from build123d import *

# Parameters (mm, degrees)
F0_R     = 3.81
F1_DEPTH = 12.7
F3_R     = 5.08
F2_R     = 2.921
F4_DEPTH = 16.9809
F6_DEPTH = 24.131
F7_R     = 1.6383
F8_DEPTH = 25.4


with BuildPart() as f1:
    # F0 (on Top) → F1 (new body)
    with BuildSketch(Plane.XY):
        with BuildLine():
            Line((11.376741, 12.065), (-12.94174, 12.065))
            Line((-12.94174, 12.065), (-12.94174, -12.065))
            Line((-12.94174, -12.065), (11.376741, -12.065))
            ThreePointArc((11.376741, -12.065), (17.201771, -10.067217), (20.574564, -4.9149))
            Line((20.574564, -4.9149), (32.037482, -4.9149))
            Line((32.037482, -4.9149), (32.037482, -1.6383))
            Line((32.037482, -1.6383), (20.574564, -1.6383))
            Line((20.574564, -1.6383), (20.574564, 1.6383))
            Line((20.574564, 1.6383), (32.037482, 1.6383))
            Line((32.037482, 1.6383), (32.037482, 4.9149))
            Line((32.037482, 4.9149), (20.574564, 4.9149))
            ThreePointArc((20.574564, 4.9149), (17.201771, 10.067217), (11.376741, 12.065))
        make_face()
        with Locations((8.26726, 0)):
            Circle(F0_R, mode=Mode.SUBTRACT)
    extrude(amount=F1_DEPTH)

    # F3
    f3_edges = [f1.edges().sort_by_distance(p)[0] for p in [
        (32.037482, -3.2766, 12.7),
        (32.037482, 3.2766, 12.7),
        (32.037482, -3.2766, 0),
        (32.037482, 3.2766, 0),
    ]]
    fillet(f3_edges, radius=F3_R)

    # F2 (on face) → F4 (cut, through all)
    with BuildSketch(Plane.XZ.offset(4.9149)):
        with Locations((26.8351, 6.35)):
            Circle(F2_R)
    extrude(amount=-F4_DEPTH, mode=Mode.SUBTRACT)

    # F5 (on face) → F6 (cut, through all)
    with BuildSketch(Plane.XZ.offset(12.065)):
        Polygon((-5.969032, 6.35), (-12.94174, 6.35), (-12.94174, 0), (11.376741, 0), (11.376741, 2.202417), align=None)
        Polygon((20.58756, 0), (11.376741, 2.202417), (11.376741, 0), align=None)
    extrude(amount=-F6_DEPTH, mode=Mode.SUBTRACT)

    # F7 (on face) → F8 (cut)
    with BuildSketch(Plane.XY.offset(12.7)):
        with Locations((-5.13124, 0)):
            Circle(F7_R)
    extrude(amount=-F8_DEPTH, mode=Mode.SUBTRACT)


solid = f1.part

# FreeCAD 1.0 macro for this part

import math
import FreeCAD as App
import Part
import Sketcher
from FreeCAD import Vector
Q = App.Units.Quantity


def edges_at(feature, points):
    """Names of the edges that pass closest to the given points."""
    edges = feature.Shape.Edges
    near = lambda p: min(range(len(edges)), key=lambda i: edges[i].distToShape(Part.Vertex(*p))[0])
    return sorted({f"Edge{near(p) + 1}" for p in points})


def add_polygon(sketch, points):
    """Adds a closed chain of lines whose ends are joined by coincident constraints."""
    first, n = sketch.GeometryCount, len(points)
    for a, b in zip(points, points[1:] + points[:1]):
        sketch.addGeometry(Part.LineSegment(App.Vector(*a, 0), App.Vector(*b, 0)), False)
    for i in range(n):
        sketch.addConstraint(Sketcher.Constraint("Coincident", first + i, 2, first + (i + 1) % n, 1))

doc = App.newDocument("Part")
body = doc.addObject("PartDesign::Body", "Body")

# Sketch on XY plane
sketch1 = doc.addObject("Sketcher::SketchObject", "Sketch")
body.addObject(sketch1)
sketch1.AttachmentSupport = (doc.XY_Plane, [""])
sketch1.MapMode = "FlatFace"
sketch1.addGeometry(Part.LineSegment(Vector(11.4, 12.1, 0), Vector(-12.9, 12.1, 0)), False)
sketch1.addGeometry(Part.LineSegment(Vector(-12.9, 12.1, 0), Vector(-12.9, -12.1, 0)), False)
sketch1.addGeometry(Part.LineSegment(Vector(-12.9, -12.1, 0), Vector(11.4, -12.1, 0)), False)
sketch1.addGeometry(Part.ArcOfCircle(Part.Circle(Vector(11.4, -2.6, 0), Vector(0, 0, 1), 9.5), math.radians(-90), math.radians(-14)), False)
sketch1.addGeometry(Part.LineSegment(Vector(20.6, -4.9, 0), Vector(32, -4.9, 0)), False)
sketch1.addGeometry(Part.LineSegment(Vector(32, -4.9, 0), Vector(32, -1.6, 0)), False)
sketch1.addGeometry(Part.LineSegment(Vector(32, -1.6, 0), Vector(20.6, -1.6, 0)), False)
sketch1.addGeometry(Part.LineSegment(Vector(20.6, -1.6, 0), Vector(20.6, 1.6, 0)), False)
sketch1.addGeometry(Part.LineSegment(Vector(20.6, 1.6, 0), Vector(32, 1.6, 0)), False)
sketch1.addGeometry(Part.LineSegment(Vector(32, 1.6, 0), Vector(32, 4.9, 0)), False)
sketch1.addGeometry(Part.LineSegment(Vector(32, 4.9, 0), Vector(20.6, 4.9, 0)), False)
sketch1.addGeometry(Part.ArcOfCircle(Part.Circle(Vector(11.4, 2.6, 0), Vector(0, 0, 1), 9.5), math.radians(14), math.radians(90)), False)
sketch1.addGeometry(Part.Circle(Vector(8.3, 0, 0), Vector(0, 0, 1), 3.8), False)
sketch1.addConstraint(Sketcher.Constraint("Coincident", 0, 2, 1, 1))
sketch1.addConstraint(Sketcher.Constraint("Coincident", 1, 2, 2, 1))
sketch1.addConstraint(Sketcher.Constraint("Tangent", 2, 2, 3, 1))
sketch1.addConstraint(Sketcher.Constraint("Coincident", 3, 2, 4, 1))
sketch1.addConstraint(Sketcher.Constraint("Coincident", 4, 2, 5, 1))
sketch1.addConstraint(Sketcher.Constraint("Coincident", 5, 2, 6, 1))
sketch1.addConstraint(Sketcher.Constraint("Coincident", 6, 2, 7, 1))
sketch1.addConstraint(Sketcher.Constraint("Coincident", 7, 2, 8, 1))
sketch1.addConstraint(Sketcher.Constraint("Coincident", 8, 2, 9, 1))
sketch1.addConstraint(Sketcher.Constraint("Coincident", 9, 2, 10, 1))
sketch1.addConstraint(Sketcher.Constraint("Coincident", 10, 2, 11, 1))
sketch1.addConstraint(Sketcher.Constraint("Tangent", 11, 2, 0, 1))
sketch1.addConstraint(Sketcher.Constraint("Horizontal", 0))
sketch1.addConstraint(Sketcher.Constraint("Vertical", 1))
sketch1.addConstraint(Sketcher.Constraint("Horizontal", 2))
sketch1.addConstraint(Sketcher.Constraint("Horizontal", 4))
sketch1.addConstraint(Sketcher.Constraint("Vertical", 5))
sketch1.addConstraint(Sketcher.Constraint("Horizontal", 6))
sketch1.addConstraint(Sketcher.Constraint("Vertical", 7))
sketch1.addConstraint(Sketcher.Constraint("Horizontal", 8))
sketch1.addConstraint(Sketcher.Constraint("Vertical", 9))
sketch1.addConstraint(Sketcher.Constraint("Horizontal", 10))
sketch1.addConstraint(Sketcher.Constraint("Equal", 3, 11))
sketch1.addConstraint(Sketcher.Constraint("Symmetric", 3, 3, 11, 3, -1))
sketch1.addConstraint(Sketcher.Constraint("Symmetric", 5, 2, 8, 2, -1))
sketch1.addConstraint(Sketcher.Constraint("PointOnObject", 12, 3, -1))
sketch1.addConstraint(Sketcher.Constraint("Vertical", 3, 2, 6, 2))
sketch1.addConstraint(Sketcher.Constraint("Vertical", 7, 2, 10, 2))
sketch1.addConstraint(Sketcher.Constraint("Equal", 5, 7))
sketch1.addConstraint(Sketcher.Constraint("Diameter", 12, Q("0.3 in")))
sketch1.addConstraint(Sketcher.Constraint("DistanceY", 1, 2, 1, 1, Q("0.95 in")))
sketch1.addConstraint(Sketcher.Constraint("DistanceY", 5, 1, 5, 2, Q("0.129 in")))
sketch1.addConstraint(Sketcher.Constraint("DistanceX", 0, 2, 12, 3, Q("0.835 in")))
sketch1.addConstraint(Sketcher.Constraint("Radius", 3, Q("9.491047 mm")))
sketch1.addConstraint(Sketcher.Constraint("DistanceX", 0, 2, 0, 1, Q("24.318481 mm")))
sketch1.addConstraint(Sketcher.Constraint("DistanceX", 4, 1, 4, 2, Q("11.462918 mm")))
sketch1.addConstraint(Sketcher.Constraint("DistanceX", -1, 1, 3, 3, Q("11.376742 mm")))
pad1 = doc.addObject("PartDesign::Pad", "Pad")
body.addObject(pad1)
pad1.Profile = sketch1
pad1.Length = Q("0.5 in")
doc.recompute()

fillet = doc.addObject("PartDesign::Fillet", "Fillet")
body.addObject(fillet)
fillet.Base = (pad1, edges_at(pad1, [
    (32.037, -3.277, 12.7),
    (32.037, 3.277, 12.7),
    (32.037, -3.277, 0),
    (32.037, 3.277, 0),
]))
fillet.Radius = Q("0.2 in")

# Sketch on XZ plane
sketch2 = doc.addObject("Sketcher::SketchObject", "Sketch001")
body.addObject(sketch2)
sketch2.AttachmentSupport = (doc.XZ_Plane, [""])
sketch2.MapMode = "FlatFace"
sketch2.AttachmentOffset = App.Placement(Vector(0, 0, 0.1935 * 25.4), App.Rotation())
sketch2.addGeometry(Part.Circle(Vector(26.8, 6.3, 0), Vector(0, 0, 1), 2.9), False)
sketch2.addConstraint(Sketcher.Constraint("Diameter", 0, Q("0.23 in")))
sketch2.addConstraint(Sketcher.Constraint("DistanceY", -1, 1, 0, 3, Q("0.25 in")))
sketch2.addConstraint(Sketcher.Constraint("DistanceX", -1, 1, 0, 3, Q("1.0565 in")))
pocket1 = doc.addObject("PartDesign::Pocket", "Pocket")
body.addObject(pocket1)
pocket1.Profile = sketch2
pocket1.Type = "ThroughAll"

# Sketch on XZ plane
sketch3 = doc.addObject("Sketcher::SketchObject", "Sketch002")
body.addObject(sketch3)
sketch3.AttachmentSupport = (doc.XZ_Plane, [""])
sketch3.MapMode = "FlatFace"
sketch3.AttachmentOffset = App.Placement(Vector(0, 0, 0.475 * 25.4), App.Rotation())
add_polygon(sketch3, [(-6, 6), (-13, 6), (-13, 0), (21, 0), (11, 2)])  # lines 0-4
sketch3.addConstraint(Sketcher.Constraint("Horizontal", 0))
sketch3.addConstraint(Sketcher.Constraint("Vertical", 1))
sketch3.addConstraint(Sketcher.Constraint("Horizontal", 2))
sketch3.addConstraint(Sketcher.Constraint("PointOnObject", 1, 2, -1))
sketch3.addConstraint(Sketcher.Constraint("Parallel", 3, 4))
sketch3.addConstraint(Sketcher.Constraint("DistanceY", 1, 2, 1, 1, Q("0.25 in")))
sketch3.addConstraint(Sketcher.Constraint("DistanceX", 2, 1, 2, 2, Q("33.5293 mm")))
sketch3.addConstraint(Sketcher.Constraint("Distance", 3, Q("9.470471 mm")))
sketch3.addConstraint(Sketcher.Constraint("Distance", 4, Q("17.834749 mm")))
sketch3.addConstraint(Sketcher.Constraint("DistanceX", 0, 2, -1, 1, Q("12.94174 mm")))
pocket2 = doc.addObject("PartDesign::Pocket", "Pocket001")
body.addObject(pocket2)
pocket2.Profile = sketch3
pocket2.Type = "ThroughAll"

# Sketch on XY plane
sketch4 = doc.addObject("Sketcher::SketchObject", "Sketch003")
body.addObject(sketch4)
sketch4.AttachmentSupport = (doc.XY_Plane, [""])
sketch4.MapMode = "FlatFace"
sketch4.AttachmentOffset = App.Placement(Vector(0, 0, 0.5 * 25.4), App.Rotation())
sketch4.addGeometry(Part.Circle(Vector(-5.1, 0, 0), Vector(0, 0, 1), 1.6), False)
sketch4.addConstraint(Sketcher.Constraint("PointOnObject", 0, 3, -1))
sketch4.addConstraint(Sketcher.Constraint("Diameter", 0, Q("0.129 in")))
sketch4.addConstraint(Sketcher.Constraint("DistanceX", 0, 3, -1, 1, Q("5.13124 mm")))
pocket3 = doc.addObject("PartDesign::Pocket", "Pocket002")
body.addObject(pocket3)
pocket3.Profile = sketch4
pocket3.Length = Q("1 in")

doc.recompute()
